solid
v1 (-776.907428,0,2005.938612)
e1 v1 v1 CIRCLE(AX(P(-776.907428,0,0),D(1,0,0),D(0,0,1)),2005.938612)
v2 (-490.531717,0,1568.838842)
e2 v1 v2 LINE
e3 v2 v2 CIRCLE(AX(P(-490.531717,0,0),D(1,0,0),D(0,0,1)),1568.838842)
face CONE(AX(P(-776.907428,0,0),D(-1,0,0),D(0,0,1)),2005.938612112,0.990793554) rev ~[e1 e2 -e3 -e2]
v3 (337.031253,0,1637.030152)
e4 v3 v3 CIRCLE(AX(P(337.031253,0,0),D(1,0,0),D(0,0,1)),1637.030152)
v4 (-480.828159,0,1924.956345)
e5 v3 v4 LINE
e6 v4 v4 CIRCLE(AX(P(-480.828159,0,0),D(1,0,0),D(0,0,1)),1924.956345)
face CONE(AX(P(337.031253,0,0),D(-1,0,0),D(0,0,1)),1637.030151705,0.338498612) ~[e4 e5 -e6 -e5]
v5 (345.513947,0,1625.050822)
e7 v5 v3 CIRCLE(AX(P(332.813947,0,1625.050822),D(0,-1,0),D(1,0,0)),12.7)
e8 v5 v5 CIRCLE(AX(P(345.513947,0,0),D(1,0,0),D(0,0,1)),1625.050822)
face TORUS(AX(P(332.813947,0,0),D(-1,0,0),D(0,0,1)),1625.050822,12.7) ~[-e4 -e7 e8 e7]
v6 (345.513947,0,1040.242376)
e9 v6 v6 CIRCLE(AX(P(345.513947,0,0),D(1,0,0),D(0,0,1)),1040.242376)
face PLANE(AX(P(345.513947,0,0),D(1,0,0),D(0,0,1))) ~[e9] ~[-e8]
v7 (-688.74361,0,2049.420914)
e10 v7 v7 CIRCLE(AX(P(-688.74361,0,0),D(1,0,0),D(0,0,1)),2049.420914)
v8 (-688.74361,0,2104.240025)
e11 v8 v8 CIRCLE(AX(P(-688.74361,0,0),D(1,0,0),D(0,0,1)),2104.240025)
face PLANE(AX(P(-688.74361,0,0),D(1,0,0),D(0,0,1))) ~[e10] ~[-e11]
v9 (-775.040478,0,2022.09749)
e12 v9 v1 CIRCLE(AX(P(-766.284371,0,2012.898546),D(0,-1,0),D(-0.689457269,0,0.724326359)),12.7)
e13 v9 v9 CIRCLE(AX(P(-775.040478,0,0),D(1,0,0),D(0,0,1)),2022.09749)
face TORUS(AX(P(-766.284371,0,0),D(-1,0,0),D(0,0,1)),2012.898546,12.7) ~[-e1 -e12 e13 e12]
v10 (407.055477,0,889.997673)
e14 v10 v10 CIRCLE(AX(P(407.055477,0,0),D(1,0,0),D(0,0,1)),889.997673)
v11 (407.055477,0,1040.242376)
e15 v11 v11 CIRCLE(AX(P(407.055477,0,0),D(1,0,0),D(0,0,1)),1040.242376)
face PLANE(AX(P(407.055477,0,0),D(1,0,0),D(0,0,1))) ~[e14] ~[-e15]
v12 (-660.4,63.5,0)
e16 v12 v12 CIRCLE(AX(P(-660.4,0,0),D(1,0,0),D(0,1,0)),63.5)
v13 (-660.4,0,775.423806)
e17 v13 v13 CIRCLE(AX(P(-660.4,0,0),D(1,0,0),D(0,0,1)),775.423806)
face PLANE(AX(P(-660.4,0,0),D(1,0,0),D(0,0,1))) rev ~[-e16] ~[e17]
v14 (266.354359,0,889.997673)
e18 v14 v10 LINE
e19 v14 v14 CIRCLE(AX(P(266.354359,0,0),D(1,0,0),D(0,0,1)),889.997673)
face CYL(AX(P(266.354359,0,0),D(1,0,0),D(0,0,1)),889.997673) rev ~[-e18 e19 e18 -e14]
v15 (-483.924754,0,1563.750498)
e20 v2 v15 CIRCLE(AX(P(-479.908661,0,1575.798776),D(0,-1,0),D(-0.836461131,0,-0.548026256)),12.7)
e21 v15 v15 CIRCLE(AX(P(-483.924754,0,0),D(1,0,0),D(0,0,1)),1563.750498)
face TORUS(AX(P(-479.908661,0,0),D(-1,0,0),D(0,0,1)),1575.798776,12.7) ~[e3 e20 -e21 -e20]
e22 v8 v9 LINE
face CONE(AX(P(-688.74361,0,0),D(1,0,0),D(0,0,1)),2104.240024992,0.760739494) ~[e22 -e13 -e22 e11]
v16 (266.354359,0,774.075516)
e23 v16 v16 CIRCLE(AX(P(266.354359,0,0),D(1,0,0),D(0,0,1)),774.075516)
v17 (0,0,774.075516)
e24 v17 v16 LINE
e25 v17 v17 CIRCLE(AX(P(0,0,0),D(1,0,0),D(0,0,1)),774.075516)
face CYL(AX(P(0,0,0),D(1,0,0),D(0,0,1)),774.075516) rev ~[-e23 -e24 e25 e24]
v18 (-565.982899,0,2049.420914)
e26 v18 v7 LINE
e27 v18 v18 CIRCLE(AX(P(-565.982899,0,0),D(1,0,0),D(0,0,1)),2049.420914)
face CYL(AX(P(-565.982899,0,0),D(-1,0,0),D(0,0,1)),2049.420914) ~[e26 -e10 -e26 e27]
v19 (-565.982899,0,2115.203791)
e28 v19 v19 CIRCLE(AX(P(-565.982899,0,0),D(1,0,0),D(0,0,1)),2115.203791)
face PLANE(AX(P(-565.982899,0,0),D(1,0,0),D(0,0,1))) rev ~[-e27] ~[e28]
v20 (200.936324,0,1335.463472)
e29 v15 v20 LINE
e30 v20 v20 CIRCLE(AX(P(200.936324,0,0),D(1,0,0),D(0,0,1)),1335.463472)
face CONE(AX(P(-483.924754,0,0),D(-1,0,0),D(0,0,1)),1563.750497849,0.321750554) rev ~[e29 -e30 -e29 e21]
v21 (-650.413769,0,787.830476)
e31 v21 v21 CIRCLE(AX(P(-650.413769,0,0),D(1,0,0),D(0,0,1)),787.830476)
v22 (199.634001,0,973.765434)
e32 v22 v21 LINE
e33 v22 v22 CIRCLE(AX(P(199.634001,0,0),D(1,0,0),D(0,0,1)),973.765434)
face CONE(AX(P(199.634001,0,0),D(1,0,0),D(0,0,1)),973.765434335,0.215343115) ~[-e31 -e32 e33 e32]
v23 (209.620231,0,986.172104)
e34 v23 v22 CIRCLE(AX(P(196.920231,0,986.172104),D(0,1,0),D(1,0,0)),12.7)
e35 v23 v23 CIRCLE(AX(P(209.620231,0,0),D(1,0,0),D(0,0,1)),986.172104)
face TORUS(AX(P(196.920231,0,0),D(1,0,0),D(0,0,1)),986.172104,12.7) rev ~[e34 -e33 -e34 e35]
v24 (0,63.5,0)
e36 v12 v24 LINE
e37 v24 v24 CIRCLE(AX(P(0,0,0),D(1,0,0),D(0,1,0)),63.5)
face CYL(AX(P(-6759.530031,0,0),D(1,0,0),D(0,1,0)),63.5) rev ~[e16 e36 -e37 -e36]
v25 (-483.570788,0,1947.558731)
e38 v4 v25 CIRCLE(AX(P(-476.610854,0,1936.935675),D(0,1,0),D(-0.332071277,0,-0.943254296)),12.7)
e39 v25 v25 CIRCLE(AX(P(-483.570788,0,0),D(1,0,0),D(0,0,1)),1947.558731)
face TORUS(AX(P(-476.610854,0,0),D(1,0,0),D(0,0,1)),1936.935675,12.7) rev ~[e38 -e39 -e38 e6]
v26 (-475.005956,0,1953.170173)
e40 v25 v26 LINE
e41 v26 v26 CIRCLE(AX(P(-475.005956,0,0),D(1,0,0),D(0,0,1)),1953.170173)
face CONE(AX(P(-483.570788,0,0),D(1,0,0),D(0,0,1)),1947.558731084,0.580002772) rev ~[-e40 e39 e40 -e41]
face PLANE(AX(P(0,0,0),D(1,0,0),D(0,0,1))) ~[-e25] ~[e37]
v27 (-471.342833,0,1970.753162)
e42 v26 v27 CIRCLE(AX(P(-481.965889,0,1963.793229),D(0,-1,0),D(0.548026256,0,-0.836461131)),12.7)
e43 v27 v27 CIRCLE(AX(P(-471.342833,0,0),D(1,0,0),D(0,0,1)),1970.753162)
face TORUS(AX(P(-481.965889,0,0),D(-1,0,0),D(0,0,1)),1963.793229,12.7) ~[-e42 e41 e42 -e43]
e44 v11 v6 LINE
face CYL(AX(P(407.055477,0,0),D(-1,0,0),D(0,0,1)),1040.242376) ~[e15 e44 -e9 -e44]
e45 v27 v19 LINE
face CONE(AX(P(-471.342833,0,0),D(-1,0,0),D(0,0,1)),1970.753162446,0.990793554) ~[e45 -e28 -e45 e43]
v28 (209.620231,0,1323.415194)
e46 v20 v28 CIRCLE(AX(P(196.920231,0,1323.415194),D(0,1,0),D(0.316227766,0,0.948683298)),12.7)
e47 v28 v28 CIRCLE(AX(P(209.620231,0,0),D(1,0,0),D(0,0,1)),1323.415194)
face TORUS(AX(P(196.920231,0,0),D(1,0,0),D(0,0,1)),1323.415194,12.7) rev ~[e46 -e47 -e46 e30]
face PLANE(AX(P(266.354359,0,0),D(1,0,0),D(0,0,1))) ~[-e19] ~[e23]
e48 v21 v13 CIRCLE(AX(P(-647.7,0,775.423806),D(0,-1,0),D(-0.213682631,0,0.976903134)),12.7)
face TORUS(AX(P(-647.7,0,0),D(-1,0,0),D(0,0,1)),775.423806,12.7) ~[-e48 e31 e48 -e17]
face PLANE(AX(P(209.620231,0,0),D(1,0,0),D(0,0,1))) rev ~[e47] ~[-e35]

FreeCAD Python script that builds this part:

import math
import FreeCAD as App
import Part
import Sketcher
from FreeCAD import Vector
Q = App.Units.Quantity

doc = App.newDocument("Part")
body = doc.addObject("PartDesign::Body", "Body")

# Sketch on XZ plane
sketch1 = doc.addObject("Sketcher::SketchObject", "Sketch")
body.addObject(sketch1)
sketch1.AttachmentSupport = (doc.XZ_Plane, [""])
sketch1.MapMode = "FlatFace"
sketch1.addGeometry([
    Part.LineSegment(Vector(-660, 775, 0), Vector(-660, 0, 0)),  # 0
    Part.LineSegment(Vector(-660, 0, 0), Vector(0, 0, 0)),  # 1
    Part.LineSegment(Vector(0, 0, 0), Vector(0, 774, 0)),  # 2
    Part.LineSegment(Vector(0, 774, 0), Vector(266, 774, 0)),  # 3
    Part.LineSegment(Vector(266, 774, 0), Vector(266, 890, 0)),  # 4
    Part.LineSegment(Vector(266, 890, 0), Vector(407, 890, 0)),  # 5
    Part.LineSegment(Vector(407, 890, 0), Vector(407, 1040, 0)),  # 6
    Part.LineSegment(Vector(407, 1040, 0), Vector(346, 1040, 0)),  # 7
    Part.LineSegment(Vector(346, 1040, 0), Vector(346, 1625, 0)),  # 8
    Part.ArcOfCircle(Part.Circle(Vector(333, 1625, 0), Vector(0, 0, 1), 13), math.radians(0), math.radians(71)),  # 9
    Part.LineSegment(Vector(337, 1637, 0), Vector(-481, 1925, 0)),  # 10
    Part.ArcOfCircle(Part.Circle(Vector(-477, 1937, 0), Vector(0, 0, 1), 13), math.radians(123), math.radians(251)),  # 11
    Part.LineSegment(Vector(-484, 1948, 0), Vector(-475, 1953, 0)),  # 12
    Part.ArcOfCircle(Part.Circle(Vector(-482, 1964, 0), Vector(0, 0, 1), 13), math.radians(-57), math.radians(33)),  # 13
    Part.LineSegment(Vector(-471, 1971, 0), Vector(-566, 2115, 0)),  # 14
    Part.LineSegment(Vector(-566, 2115, 0), Vector(-566, 2049, 0)),  # 15
    Part.LineSegment(Vector(-566, 2049, 0), Vector(-689, 2049, 0)),  # 16
    Part.LineSegment(Vector(-689, 2049, 0), Vector(-689, 2104, 0)),  # 17
    Part.LineSegment(Vector(-689, 2104, 0), Vector(-775, 2022, 0)),  # 18
    Part.ArcOfCircle(Part.Circle(Vector(-766, 2013, 0), Vector(0, 0, 1), 13), math.radians(134), math.radians(213)),  # 19
    Part.LineSegment(Vector(-777, 2006, 0), Vector(-491, 1569, 0)),  # 20
    Part.ArcOfCircle(Part.Circle(Vector(-480, 1576, 0), Vector(0, 0, 1), 13), math.radians(-147), math.radians(-108)),  # 21
    Part.LineSegment(Vector(-484, 1564, 0), Vector(201, 1335, 0)),  # 22
    Part.ArcOfCircle(Part.Circle(Vector(197, 1323, 0), Vector(0, 0, 1), 13), math.radians(0), math.radians(72)),  # 23
    Part.LineSegment(Vector(210, 1323, 0), Vector(210, 986, 0)),  # 24
    Part.ArcOfCircle(Part.Circle(Vector(197, 986, 0), Vector(0, 0, 1), 13), math.radians(-78), math.radians(0)),  # 25
    Part.LineSegment(Vector(200, 974, 0), Vector(-650, 788, 0)),  # 26
    Part.ArcOfCircle(Part.Circle(Vector(-648, 775, 0), Vector(0, 0, 1), 13), math.radians(102), math.radians(180)),  # 27
], False)
sketch1.addConstraint([
    Sketcher.Constraint("Coincident", 0, 2, 1, 1),
    Sketcher.Constraint("Coincident", 1, 2, 2, 1),
    Sketcher.Constraint("Coincident", 2, 2, 3, 1),
    Sketcher.Constraint("Coincident", 3, 2, 4, 1),
    Sketcher.Constraint("Coincident", 4, 2, 5, 1),
    Sketcher.Constraint("Coincident", 5, 2, 6, 1),
    Sketcher.Constraint("Coincident", 6, 2, 7, 1),
    Sketcher.Constraint("Coincident", 7, 2, 8, 1),
    Sketcher.Constraint("Tangent", 8, 2, 9, 1),
    Sketcher.Constraint("Tangent", 9, 2, 10, 1),
    Sketcher.Constraint("Tangent", 10, 2, 11, 2),
    Sketcher.Constraint("Tangent", 11, 1, 12, 1),
    Sketcher.Constraint("Tangent", 12, 2, 13, 1),
    Sketcher.Constraint("Tangent", 13, 2, 14, 1),
    Sketcher.Constraint("Coincident", 14, 2, 15, 1),
    Sketcher.Constraint("Coincident", 15, 2, 16, 1),
    Sketcher.Constraint("Coincident", 16, 2, 17, 1),
    Sketcher.Constraint("Coincident", 17, 2, 18, 1),
    Sketcher.Constraint("Tangent", 18, 2, 19, 1),
    Sketcher.Constraint("Tangent", 19, 2, 20, 1),
    Sketcher.Constraint("Tangent", 20, 2, 21, 1),
    Sketcher.Constraint("Tangent", 21, 2, 22, 1),
    Sketcher.Constraint("Tangent", 22, 2, 23, 2),
    Sketcher.Constraint("Tangent", 23, 1, 24, 1),
    Sketcher.Constraint("Tangent", 24, 2, 25, 2),
    Sketcher.Constraint("Tangent", 25, 1, 26, 1),
    Sketcher.Constraint("Tangent", 26, 2, 27, 1),
    Sketcher.Constraint("Tangent", 27, 2, 0, 1),
    Sketcher.Constraint("Vertical", 0),
    Sketcher.Constraint("Horizontal", 1),
    Sketcher.Constraint("Vertical", 2),
    Sketcher.Constraint("Horizontal", 3),
    Sketcher.Constraint("Vertical", 4),
    Sketcher.Constraint("Horizontal", 5),
    Sketcher.Constraint("Vertical", 6),
    Sketcher.Constraint("Horizontal", 7),
    Sketcher.Constraint("Vertical", 8),
    Sketcher.Constraint("Vertical", 15),
    Sketcher.Constraint("Horizontal", 16),
    Sketcher.Constraint("Vertical", 17),
    Sketcher.Constraint("Vertical", 24),
    Sketcher.Constraint("Coincident", 1, 2, -1, 1),
    Sketcher.Constraint("Equal", 9, 11),
    Sketcher.Constraint("Equal", 11, 13),
    Sketcher.Constraint("Equal", 13, 19),
    Sketcher.Constraint("Equal", 19, 21),
    Sketcher.Constraint("Equal", 21, 23),
    Sketcher.Constraint("Equal", 23, 25),
    Sketcher.Constraint("Equal", 25, 27),
    Sketcher.Constraint("Perpendicular", 12, 14),
    Sketcher.Constraint("Parallel", 14, 20),
    Sketcher.Constraint("Radius", 9, Q("0.5 in")),
    Sketcher.Constraint("DistanceX", 1, 1, 1, 2, Q("26 in")),
    Sketcher.Constraint("DistanceX", 13, 3, 23, 3, Q("26.7278 in")),
    Sketcher.Constraint("Distance", 26, 870.145402),
    Sketcher.Constraint("DistanceX", 3, 1, 3, 2, 266.354359),
    Sketcher.Constraint("DistanceX", 7, 2, 7, 1, 61.54153),
    Sketcher.Constraint("DistanceX", 16, 2, 16, 1, 122.760711),
    Sketcher.Constraint("DistanceY", 17, 1, 17, 2, 54.819111),
    Sketcher.Constraint("DistanceY", 24, 2, 24, 1, 337.24309),
    Sketcher.Constraint("DistanceX", 14, 2, -1, 1, 565.982899),
    Sketcher.Constraint("DistanceX", -1, 1, 25, 1, 199.634001),
    Sketcher.Constraint("DistanceX", 11, 3, 9, 3, 809.424802),
    Sketcher.Constraint("DistanceY", 21, 3, 11, 3, 361.136899),
    Sketcher.Constraint("DistanceY", 10, 2, 19, 3, 87.9422),
    Sketcher.Constraint("DistanceX", 10, 2, 21, 3, 0.919498),
    Sketcher.Constraint("DistanceX", 11, 1, 13, 3, 1.604898),
    Sketcher.Constraint("DistanceY", 18, 2, 14, 2, 93.106301),
    Sketcher.Constraint("DistanceY", 19, 2, 16, 2, 43.482302),
    Sketcher.Constraint("Distance", 22, 721.906962),
    Sketcher.Constraint("DistanceY", 0, 2, 0, 1, 775.423806),
    Sketcher.Constraint("DistanceY", 2, 1, 2, 2, 774.075516),
    Sketcher.Constraint("DistanceY", 4, 1, 4, 2, 115.922157),
    Sketcher.Constraint("DistanceY", 6, 1, 6, 2, 150.244703),
    Sketcher.Constraint("DistanceY", 8, 1, 8, 2, 584.808446),
])
revolution = doc.addObject("PartDesign::Revolution", "Revolution")
body.addObject(revolution)
revolution.Profile = sketch1
revolution.ReferenceAxis = (sketch1, ["H_Axis"])
revolution.Angle = 360

# Sketch on YZ plane
sketch2 = doc.addObject("Sketcher::SketchObject", "Sketch001")
body.addObject(sketch2)
sketch2.AttachmentSupport = (doc.YZ_Plane, [""])
sketch2.MapMode = "FlatFace"
sketch2.AttachmentOffset = App.Placement(Vector(0, 0, -26 * 25.4), App.Rotation())
sketch2.addGeometry(Part.Circle(Vector(0, 0, 0), Vector(0, 0, 1), 64), False)
sketch2.addConstraint([
    Sketcher.Constraint("Coincident", 0, 3, -1, 1),
    Sketcher.Constraint("Diameter", 0, Q("5 in")),
])
doc.recompute()
hole = doc.addObject("PartDesign::Hole", "Hole")
body.addObject(hole)
hole.Profile = sketch2
hole.ThreadType = "None"
hole.Diameter = Q("5 in")
hole.DepthType = "ThroughAll"
hole.Reversed = True

doc.recompute()
